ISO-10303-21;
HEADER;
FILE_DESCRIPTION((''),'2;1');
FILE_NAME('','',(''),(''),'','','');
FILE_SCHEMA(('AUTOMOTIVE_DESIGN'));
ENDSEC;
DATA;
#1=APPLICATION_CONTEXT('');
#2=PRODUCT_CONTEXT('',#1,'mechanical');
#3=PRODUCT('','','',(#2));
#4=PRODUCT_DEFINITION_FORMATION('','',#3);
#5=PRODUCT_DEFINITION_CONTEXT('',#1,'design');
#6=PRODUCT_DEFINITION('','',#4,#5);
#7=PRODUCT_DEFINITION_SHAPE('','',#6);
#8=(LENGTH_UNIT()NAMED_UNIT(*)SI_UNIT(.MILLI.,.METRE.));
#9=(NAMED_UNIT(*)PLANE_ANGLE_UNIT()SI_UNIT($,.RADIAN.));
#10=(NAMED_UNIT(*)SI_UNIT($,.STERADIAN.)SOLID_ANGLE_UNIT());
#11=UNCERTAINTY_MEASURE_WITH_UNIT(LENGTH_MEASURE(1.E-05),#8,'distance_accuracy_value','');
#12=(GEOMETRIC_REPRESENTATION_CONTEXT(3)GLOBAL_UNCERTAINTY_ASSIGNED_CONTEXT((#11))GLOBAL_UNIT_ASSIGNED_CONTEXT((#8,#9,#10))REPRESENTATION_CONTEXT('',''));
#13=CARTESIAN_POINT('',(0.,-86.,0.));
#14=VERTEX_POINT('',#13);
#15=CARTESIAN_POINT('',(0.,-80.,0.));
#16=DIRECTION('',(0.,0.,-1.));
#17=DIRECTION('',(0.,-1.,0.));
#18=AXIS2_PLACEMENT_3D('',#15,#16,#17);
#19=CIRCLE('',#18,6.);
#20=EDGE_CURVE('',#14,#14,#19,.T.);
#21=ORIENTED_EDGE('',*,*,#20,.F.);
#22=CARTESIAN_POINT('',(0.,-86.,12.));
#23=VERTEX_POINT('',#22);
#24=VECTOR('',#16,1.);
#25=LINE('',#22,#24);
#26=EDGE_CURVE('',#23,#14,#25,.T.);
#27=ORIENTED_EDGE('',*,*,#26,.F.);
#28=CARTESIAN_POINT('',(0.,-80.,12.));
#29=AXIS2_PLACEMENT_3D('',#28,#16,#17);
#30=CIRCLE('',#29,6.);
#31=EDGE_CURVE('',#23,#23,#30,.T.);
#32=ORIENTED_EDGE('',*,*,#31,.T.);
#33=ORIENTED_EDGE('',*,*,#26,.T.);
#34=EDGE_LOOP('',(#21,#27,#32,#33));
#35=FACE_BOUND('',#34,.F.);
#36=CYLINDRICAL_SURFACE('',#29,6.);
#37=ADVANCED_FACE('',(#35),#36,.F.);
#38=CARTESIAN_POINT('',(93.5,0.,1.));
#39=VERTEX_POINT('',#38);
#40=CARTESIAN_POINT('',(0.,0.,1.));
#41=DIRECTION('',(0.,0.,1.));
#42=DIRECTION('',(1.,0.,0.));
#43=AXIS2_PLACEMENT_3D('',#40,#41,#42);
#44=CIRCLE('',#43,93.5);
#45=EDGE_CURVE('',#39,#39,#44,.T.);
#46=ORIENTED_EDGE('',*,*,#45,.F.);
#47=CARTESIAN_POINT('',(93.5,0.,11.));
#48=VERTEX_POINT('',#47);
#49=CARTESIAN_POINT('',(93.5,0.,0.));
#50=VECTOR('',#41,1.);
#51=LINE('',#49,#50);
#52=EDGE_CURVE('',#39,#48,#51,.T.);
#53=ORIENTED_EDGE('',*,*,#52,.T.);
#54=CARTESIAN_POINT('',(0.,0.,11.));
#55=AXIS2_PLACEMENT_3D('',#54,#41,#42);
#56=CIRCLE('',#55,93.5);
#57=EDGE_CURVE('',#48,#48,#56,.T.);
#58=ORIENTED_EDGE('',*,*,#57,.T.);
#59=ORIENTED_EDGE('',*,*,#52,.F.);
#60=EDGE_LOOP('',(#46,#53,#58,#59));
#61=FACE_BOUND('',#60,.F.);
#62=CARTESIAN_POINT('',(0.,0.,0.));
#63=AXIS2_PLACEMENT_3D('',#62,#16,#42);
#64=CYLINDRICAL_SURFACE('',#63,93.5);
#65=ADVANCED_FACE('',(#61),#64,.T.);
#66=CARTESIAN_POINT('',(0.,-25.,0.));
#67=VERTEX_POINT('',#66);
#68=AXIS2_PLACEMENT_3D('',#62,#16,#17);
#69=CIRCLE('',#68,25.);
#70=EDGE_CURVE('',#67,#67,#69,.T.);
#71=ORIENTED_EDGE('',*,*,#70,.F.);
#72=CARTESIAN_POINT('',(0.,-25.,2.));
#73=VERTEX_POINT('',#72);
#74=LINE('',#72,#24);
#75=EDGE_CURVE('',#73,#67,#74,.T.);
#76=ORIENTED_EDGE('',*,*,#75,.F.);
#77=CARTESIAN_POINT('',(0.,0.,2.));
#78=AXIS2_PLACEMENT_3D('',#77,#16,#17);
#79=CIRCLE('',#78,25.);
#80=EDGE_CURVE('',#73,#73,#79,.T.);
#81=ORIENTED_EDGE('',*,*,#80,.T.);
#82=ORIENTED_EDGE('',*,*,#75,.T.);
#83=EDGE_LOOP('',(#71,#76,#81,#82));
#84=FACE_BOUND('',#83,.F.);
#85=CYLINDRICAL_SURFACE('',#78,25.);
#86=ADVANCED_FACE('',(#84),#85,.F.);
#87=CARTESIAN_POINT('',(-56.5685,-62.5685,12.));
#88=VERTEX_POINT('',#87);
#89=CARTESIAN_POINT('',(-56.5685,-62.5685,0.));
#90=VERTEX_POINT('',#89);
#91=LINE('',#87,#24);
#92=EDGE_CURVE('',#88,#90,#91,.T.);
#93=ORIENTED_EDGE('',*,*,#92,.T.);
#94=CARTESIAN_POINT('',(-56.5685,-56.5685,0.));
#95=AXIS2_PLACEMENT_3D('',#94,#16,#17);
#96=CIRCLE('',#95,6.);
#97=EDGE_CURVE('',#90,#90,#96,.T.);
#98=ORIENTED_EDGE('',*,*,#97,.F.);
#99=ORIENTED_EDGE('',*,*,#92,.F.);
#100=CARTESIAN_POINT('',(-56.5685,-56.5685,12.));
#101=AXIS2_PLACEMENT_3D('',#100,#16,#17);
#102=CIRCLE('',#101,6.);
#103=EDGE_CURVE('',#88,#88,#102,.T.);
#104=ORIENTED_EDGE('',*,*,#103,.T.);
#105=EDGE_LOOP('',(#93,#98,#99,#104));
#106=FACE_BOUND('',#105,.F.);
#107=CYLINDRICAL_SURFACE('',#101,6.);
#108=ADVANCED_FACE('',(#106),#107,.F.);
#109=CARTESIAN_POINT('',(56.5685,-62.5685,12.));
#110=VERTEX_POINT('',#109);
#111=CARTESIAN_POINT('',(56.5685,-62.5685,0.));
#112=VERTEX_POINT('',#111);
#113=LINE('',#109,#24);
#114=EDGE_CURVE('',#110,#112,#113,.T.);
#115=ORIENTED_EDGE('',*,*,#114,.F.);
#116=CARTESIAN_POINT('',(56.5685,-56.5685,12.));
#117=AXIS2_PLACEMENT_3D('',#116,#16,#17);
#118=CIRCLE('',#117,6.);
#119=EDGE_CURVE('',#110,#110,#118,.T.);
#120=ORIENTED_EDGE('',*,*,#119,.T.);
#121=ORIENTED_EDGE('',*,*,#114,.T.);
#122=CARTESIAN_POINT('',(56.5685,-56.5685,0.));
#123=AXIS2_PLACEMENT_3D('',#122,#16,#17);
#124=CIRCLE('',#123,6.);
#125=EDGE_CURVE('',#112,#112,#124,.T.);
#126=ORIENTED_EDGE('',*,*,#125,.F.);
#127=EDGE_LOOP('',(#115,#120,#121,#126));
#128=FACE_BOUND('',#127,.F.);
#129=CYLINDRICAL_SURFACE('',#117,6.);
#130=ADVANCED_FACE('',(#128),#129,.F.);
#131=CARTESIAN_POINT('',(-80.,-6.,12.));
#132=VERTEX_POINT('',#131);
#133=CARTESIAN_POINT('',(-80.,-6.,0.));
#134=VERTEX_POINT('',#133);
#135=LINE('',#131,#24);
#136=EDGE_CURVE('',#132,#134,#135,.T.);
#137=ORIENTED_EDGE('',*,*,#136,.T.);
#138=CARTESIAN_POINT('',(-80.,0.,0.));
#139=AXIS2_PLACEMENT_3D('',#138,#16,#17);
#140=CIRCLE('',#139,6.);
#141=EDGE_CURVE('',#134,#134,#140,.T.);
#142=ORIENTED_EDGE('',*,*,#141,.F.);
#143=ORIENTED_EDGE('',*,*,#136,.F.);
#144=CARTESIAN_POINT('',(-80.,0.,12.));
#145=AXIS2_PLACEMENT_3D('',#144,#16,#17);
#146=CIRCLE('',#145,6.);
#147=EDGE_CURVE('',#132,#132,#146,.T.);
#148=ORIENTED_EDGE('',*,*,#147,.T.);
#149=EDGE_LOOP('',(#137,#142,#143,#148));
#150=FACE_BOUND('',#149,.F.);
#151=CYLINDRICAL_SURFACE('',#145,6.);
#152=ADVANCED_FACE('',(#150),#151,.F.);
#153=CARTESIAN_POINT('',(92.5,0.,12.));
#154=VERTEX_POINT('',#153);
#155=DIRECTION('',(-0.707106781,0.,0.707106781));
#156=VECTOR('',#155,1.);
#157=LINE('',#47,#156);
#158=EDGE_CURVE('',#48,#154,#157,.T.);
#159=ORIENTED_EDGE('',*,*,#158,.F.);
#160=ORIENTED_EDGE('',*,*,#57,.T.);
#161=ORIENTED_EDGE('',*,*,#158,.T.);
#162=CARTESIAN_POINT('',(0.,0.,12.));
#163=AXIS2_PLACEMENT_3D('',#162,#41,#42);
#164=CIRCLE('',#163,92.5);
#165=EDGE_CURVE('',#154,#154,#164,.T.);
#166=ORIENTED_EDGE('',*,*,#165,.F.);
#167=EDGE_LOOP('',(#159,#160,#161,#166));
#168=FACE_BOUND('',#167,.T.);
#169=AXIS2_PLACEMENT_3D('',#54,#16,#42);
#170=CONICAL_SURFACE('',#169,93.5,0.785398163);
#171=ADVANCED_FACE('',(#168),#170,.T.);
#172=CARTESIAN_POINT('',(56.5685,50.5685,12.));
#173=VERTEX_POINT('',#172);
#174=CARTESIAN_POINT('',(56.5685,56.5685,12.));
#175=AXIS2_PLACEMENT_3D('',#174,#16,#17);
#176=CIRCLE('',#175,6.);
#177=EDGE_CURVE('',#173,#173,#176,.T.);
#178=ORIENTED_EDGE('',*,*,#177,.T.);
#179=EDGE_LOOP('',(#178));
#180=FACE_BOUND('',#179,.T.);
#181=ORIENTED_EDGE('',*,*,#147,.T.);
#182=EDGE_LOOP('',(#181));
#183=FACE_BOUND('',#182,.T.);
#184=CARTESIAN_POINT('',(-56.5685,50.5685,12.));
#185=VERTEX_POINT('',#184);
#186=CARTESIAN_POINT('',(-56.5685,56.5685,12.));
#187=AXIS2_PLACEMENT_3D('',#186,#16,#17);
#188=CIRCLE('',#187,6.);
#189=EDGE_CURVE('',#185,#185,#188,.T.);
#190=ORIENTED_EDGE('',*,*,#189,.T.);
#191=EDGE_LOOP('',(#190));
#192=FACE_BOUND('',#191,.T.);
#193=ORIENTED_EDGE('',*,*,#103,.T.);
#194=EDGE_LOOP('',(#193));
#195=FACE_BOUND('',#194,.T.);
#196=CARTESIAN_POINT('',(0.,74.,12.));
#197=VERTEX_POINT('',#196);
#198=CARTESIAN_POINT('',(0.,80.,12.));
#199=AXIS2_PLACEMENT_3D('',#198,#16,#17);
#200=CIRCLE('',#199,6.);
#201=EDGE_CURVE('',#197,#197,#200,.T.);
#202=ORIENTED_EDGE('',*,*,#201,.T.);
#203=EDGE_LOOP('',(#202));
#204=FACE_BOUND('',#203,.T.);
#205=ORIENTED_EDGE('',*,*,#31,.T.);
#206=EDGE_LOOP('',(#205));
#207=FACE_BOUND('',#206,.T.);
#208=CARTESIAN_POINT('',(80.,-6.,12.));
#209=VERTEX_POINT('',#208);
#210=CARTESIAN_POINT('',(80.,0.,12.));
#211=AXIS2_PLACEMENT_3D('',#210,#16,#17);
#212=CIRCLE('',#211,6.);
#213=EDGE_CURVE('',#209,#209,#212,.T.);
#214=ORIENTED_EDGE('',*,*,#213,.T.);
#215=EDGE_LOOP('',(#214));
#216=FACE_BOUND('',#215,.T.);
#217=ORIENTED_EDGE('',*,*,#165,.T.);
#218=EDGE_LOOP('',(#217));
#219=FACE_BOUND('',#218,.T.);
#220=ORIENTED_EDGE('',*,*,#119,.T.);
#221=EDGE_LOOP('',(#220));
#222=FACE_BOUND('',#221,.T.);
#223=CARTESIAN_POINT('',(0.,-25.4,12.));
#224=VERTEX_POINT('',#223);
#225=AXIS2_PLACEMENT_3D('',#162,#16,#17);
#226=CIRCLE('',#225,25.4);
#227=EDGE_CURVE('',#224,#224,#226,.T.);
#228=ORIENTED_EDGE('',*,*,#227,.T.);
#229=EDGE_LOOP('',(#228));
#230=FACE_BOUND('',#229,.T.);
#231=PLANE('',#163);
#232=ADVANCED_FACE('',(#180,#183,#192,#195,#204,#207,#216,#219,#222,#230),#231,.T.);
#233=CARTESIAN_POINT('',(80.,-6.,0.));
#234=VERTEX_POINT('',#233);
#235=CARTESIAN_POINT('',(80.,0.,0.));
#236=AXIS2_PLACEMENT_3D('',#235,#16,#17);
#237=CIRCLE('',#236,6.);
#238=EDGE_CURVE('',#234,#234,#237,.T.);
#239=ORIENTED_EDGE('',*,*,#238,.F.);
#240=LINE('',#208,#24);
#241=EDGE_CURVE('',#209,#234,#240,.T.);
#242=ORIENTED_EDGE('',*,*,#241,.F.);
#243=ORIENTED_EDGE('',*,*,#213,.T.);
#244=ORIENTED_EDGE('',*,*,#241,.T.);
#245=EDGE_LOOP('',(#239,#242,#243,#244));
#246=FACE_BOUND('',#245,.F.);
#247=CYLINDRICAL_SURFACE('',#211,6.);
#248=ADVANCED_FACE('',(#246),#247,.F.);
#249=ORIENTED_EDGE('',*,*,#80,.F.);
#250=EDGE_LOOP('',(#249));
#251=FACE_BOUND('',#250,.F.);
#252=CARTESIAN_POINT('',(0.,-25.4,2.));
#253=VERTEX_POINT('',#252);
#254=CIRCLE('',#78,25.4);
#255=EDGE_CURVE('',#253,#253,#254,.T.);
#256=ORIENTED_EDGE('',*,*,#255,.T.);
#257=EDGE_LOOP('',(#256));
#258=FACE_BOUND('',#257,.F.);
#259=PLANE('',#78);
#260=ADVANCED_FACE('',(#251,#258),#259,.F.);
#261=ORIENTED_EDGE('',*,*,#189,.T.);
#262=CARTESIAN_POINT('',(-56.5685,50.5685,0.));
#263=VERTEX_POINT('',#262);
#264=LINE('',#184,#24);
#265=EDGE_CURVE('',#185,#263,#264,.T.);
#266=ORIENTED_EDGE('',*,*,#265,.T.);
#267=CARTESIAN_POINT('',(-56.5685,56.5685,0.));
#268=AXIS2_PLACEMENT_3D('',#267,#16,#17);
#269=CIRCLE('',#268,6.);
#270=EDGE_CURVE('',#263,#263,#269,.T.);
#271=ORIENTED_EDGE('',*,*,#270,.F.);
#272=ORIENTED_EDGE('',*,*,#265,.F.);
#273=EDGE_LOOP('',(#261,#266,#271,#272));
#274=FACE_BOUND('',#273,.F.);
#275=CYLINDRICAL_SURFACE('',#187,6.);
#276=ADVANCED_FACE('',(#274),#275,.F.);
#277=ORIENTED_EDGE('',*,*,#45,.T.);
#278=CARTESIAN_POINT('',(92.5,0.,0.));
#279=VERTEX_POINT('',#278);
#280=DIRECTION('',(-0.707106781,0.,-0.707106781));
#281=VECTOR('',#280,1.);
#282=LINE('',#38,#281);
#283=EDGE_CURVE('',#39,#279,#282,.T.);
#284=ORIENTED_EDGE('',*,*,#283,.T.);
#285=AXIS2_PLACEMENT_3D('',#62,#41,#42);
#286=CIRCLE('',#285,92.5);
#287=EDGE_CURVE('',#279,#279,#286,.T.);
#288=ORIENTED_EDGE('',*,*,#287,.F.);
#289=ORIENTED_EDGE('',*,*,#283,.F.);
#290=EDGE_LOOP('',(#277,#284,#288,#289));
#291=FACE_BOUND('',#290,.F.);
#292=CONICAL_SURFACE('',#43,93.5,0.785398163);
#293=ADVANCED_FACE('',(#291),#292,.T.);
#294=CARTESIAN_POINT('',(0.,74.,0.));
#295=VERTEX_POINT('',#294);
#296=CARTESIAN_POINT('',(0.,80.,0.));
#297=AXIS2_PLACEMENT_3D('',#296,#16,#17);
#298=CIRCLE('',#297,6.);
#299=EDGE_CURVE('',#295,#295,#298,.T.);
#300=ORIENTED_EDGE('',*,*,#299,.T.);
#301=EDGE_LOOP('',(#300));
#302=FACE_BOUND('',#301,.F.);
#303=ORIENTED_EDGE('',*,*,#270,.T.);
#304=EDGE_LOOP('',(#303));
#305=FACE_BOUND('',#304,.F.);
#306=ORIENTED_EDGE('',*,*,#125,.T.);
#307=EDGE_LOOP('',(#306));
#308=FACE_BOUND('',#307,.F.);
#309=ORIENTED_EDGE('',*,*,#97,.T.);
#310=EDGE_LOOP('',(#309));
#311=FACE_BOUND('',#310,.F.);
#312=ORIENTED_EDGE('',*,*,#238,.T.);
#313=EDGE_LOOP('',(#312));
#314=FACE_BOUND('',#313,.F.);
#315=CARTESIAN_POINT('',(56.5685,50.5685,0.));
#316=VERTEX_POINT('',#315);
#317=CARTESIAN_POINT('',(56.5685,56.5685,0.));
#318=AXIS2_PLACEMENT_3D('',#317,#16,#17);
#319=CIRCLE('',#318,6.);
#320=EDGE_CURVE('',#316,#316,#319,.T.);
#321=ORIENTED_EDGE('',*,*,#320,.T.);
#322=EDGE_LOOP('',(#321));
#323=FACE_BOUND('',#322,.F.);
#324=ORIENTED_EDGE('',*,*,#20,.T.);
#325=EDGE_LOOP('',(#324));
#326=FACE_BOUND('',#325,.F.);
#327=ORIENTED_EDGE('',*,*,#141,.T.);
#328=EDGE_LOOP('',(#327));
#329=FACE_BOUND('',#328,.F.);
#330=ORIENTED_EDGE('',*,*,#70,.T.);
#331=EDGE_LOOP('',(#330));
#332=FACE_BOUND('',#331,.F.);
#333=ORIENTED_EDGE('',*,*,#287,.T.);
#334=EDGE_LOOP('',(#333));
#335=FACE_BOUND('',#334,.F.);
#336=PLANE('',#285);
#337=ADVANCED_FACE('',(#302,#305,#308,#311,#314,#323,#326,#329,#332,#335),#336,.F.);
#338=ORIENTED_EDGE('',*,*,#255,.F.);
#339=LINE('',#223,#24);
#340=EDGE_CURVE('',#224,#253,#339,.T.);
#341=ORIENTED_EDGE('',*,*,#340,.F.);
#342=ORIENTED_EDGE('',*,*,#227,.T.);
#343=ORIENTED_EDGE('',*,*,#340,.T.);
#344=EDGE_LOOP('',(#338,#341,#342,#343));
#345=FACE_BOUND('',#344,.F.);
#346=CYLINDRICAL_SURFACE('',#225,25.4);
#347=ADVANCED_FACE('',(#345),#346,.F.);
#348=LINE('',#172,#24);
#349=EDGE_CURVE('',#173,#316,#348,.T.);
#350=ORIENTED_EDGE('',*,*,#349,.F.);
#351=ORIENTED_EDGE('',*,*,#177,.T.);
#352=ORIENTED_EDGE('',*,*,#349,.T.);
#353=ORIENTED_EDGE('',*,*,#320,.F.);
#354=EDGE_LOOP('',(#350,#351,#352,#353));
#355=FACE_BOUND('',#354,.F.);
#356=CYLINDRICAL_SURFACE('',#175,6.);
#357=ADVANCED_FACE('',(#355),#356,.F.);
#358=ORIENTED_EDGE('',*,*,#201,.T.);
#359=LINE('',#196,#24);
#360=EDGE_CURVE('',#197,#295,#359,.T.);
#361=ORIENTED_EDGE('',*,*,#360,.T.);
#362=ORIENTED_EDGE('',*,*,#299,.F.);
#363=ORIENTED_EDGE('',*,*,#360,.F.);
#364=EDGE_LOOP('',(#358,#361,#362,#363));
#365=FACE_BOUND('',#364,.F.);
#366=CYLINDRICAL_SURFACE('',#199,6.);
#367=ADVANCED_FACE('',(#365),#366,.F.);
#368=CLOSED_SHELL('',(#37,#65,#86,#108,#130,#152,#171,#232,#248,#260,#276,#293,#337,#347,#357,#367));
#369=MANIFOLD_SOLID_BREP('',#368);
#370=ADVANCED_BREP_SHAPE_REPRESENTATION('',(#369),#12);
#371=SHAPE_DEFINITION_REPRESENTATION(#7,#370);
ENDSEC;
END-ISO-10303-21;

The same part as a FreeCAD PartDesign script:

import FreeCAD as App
import Part
import Sketcher

V = App.Vector


def edges_at(feature, points):
    """Names of the edges that pass closest to the given points."""
    edges = feature.Shape.Edges
    near = lambda p: min(range(len(edges)), key=lambda i: edges[i].distToShape(Part.Vertex(*p))[0])
    return sorted({f"Edge{near(p) + 1}" for p in points})

doc = App.newDocument("Part")
params = doc.addObject("Spreadsheet::Sheet", "Params")
for row, (alias, value) in enumerate([
    ("sketch1_diameter", "187 mm"),
    ("pad1_length", "12 mm"),
    ("sketch2_diameter", "50 mm"),
    ("hole_diameter", "50 mm"),
    ("hole_cbore_diameter", "50.8 mm"),
    ("hole_cbore_depth", "10 mm"),
    ("sketch3_diameter", "12 mm"),
    ("hole2_diameter", "12 mm"),
    ("chamfer_size", "1 mm"),
], start=1):
    params.set(f"A{row}", alias)
    params.set(f"B{row}", "=" + value)
    params.setAlias(f"B{row}", alias)

body = doc.addObject("PartDesign::Body", "Body")

sketch1 = body.newObject("Sketcher::SketchObject", "Sketch")
sketch1.AttachmentSupport = (doc.getObject("XY_Plane"), [""])
sketch1.MapMode = "FlatFace"
sketch1.addGeometry(Part.Circle(V(0, 0, 0), V(0, 0, 1), 94), False)
sketch1.addConstraint([
    Sketcher.Constraint("Coincident", 0, 3, -1, 1),
    Sketcher.Constraint("Diameter", 0, 187.0),
])
sketch1.setExpression("Constraints[1]", "Params.sketch1_diameter")
pad1 = body.newObject("PartDesign::Pad", "Pad")
pad1.Profile = sketch1
pad1.setExpression("Length", "Params.pad1_length")

sketch2 = body.newObject("Sketcher::SketchObject", "Sketch001")
sketch2.AttachmentSupport = (doc.getObject("XY_Plane"), [""])
sketch2.MapMode = "FlatFace"
sketch2.AttachmentOffset = App.Placement(V(0, 0, 12), App.Rotation())
sketch2.addGeometry(Part.Circle(V(0, 0, 0), V(0, 0, 1), 25), False)
sketch2.addConstraint([
    Sketcher.Constraint("Coincident", 0, 3, -1, 1),
    Sketcher.Constraint("Diameter", 0, 50.0),
])
sketch2.setExpression("Constraints[1]", "Params.sketch2_diameter")
doc.recompute()
hole = body.newObject("PartDesign::Hole", "Hole")
hole.Profile = sketch2
hole.ThreadType = "None"
hole.setExpression("Diameter", "Params.hole_diameter")
hole.DepthType = "ThroughAll"
hole.HoleCutType = "Counterbore"
hole.setExpression("HoleCutDiameter", "Params.hole_cbore_diameter")
hole.setExpression("HoleCutDepth", "Params.hole_cbore_depth")

sketch3 = body.newObject("Sketcher::SketchObject", "Sketch002")
sketch3.AttachmentSupport = (doc.getObject("XY_Plane"), [""])
sketch3.MapMode = "FlatFace"
sketch3.AttachmentOffset = App.Placement(V(0, 0, 12), App.Rotation())
sketch3.addGeometry([
    Part.Circle(V(0, 80, 0), V(0, 0, 1), 6),
    Part.Circle(V(-80, 0, 0), V(0, 0, 1), 6),
    Part.Circle(V(80, 0, 0), V(0, 0, 1), 6),
    Part.Circle(V(0, -80, 0), V(0, 0, 1), 6),
    Part.Circle(V(57, 57, 0), V(0, 0, 1), 6),
    Part.Circle(V(-57, 57, 0), V(0, 0, 1), 6),
    Part.Circle(V(-57, -57, 0), V(0, 0, 1), 6),
    Part.Circle(V(57, -57, 0), V(0, 0, 1), 6),
], False)
sketch3.addConstraint([
    Sketcher.Constraint("Equal", 0, 1),
    Sketcher.Constraint("Equal", 1, 2),
    Sketcher.Constraint("Equal", 2, 3),
    Sketcher.Constraint("Equal", 3, 4),
    Sketcher.Constraint("Equal", 4, 5),
    Sketcher.Constraint("Equal", 5, 6),
    Sketcher.Constraint("Equal", 6, 7),
    Sketcher.Constraint("Symmetric", 1, 3, 2, 3, -1, 1),
    Sketcher.Constraint("Symmetric", 0, 3, 3, 3, -1, 1),
    Sketcher.Constraint("Symmetric", 4, 3, 6, 3, -1, 1),
    Sketcher.Constraint("Symmetric", 5, 3, 7, 3, -1, 1),
    Sketcher.Constraint("Symmetric", 4, 3, 5, 3, -2),
    Sketcher.Constraint("PointOnObject", 0, 3, -2),
    Sketcher.Constraint("PointOnObject", 1, 3, -1),
    Sketcher.Constraint("Diameter", 0, 12.0),
    Sketcher.Constraint("DistanceY", -1, 1, 0, 3, 80.0),
    Sketcher.Constraint("DistanceX", 1, 3, -1, 1, 80.0),
    Sketcher.Constraint("DistanceX", 5, 3, 4, 3, 113.137),
    Sketcher.Constraint("DistanceY", 6, 3, 5, 3, 113.137),
])
sketch3.setExpression("Constraints[14]", "Params.sketch3_diameter")
doc.recompute()
hole2 = body.newObject("PartDesign::Hole", "Hole001")
hole2.Profile = sketch3
hole2.ThreadType = "None"
hole2.setExpression("Diameter", "Params.hole2_diameter")
hole2.DepthType = "ThroughAll"
doc.recompute()

chamfer = body.newObject("PartDesign::Chamfer", "Chamfer")
chamfer.Base = (hole2, edges_at(hole2, [(-93.5, 0, 12), (-93.5, 0, 0)]))
chamfer.setExpression("Size", "Params.chamfer_size")

doc.recompute()
